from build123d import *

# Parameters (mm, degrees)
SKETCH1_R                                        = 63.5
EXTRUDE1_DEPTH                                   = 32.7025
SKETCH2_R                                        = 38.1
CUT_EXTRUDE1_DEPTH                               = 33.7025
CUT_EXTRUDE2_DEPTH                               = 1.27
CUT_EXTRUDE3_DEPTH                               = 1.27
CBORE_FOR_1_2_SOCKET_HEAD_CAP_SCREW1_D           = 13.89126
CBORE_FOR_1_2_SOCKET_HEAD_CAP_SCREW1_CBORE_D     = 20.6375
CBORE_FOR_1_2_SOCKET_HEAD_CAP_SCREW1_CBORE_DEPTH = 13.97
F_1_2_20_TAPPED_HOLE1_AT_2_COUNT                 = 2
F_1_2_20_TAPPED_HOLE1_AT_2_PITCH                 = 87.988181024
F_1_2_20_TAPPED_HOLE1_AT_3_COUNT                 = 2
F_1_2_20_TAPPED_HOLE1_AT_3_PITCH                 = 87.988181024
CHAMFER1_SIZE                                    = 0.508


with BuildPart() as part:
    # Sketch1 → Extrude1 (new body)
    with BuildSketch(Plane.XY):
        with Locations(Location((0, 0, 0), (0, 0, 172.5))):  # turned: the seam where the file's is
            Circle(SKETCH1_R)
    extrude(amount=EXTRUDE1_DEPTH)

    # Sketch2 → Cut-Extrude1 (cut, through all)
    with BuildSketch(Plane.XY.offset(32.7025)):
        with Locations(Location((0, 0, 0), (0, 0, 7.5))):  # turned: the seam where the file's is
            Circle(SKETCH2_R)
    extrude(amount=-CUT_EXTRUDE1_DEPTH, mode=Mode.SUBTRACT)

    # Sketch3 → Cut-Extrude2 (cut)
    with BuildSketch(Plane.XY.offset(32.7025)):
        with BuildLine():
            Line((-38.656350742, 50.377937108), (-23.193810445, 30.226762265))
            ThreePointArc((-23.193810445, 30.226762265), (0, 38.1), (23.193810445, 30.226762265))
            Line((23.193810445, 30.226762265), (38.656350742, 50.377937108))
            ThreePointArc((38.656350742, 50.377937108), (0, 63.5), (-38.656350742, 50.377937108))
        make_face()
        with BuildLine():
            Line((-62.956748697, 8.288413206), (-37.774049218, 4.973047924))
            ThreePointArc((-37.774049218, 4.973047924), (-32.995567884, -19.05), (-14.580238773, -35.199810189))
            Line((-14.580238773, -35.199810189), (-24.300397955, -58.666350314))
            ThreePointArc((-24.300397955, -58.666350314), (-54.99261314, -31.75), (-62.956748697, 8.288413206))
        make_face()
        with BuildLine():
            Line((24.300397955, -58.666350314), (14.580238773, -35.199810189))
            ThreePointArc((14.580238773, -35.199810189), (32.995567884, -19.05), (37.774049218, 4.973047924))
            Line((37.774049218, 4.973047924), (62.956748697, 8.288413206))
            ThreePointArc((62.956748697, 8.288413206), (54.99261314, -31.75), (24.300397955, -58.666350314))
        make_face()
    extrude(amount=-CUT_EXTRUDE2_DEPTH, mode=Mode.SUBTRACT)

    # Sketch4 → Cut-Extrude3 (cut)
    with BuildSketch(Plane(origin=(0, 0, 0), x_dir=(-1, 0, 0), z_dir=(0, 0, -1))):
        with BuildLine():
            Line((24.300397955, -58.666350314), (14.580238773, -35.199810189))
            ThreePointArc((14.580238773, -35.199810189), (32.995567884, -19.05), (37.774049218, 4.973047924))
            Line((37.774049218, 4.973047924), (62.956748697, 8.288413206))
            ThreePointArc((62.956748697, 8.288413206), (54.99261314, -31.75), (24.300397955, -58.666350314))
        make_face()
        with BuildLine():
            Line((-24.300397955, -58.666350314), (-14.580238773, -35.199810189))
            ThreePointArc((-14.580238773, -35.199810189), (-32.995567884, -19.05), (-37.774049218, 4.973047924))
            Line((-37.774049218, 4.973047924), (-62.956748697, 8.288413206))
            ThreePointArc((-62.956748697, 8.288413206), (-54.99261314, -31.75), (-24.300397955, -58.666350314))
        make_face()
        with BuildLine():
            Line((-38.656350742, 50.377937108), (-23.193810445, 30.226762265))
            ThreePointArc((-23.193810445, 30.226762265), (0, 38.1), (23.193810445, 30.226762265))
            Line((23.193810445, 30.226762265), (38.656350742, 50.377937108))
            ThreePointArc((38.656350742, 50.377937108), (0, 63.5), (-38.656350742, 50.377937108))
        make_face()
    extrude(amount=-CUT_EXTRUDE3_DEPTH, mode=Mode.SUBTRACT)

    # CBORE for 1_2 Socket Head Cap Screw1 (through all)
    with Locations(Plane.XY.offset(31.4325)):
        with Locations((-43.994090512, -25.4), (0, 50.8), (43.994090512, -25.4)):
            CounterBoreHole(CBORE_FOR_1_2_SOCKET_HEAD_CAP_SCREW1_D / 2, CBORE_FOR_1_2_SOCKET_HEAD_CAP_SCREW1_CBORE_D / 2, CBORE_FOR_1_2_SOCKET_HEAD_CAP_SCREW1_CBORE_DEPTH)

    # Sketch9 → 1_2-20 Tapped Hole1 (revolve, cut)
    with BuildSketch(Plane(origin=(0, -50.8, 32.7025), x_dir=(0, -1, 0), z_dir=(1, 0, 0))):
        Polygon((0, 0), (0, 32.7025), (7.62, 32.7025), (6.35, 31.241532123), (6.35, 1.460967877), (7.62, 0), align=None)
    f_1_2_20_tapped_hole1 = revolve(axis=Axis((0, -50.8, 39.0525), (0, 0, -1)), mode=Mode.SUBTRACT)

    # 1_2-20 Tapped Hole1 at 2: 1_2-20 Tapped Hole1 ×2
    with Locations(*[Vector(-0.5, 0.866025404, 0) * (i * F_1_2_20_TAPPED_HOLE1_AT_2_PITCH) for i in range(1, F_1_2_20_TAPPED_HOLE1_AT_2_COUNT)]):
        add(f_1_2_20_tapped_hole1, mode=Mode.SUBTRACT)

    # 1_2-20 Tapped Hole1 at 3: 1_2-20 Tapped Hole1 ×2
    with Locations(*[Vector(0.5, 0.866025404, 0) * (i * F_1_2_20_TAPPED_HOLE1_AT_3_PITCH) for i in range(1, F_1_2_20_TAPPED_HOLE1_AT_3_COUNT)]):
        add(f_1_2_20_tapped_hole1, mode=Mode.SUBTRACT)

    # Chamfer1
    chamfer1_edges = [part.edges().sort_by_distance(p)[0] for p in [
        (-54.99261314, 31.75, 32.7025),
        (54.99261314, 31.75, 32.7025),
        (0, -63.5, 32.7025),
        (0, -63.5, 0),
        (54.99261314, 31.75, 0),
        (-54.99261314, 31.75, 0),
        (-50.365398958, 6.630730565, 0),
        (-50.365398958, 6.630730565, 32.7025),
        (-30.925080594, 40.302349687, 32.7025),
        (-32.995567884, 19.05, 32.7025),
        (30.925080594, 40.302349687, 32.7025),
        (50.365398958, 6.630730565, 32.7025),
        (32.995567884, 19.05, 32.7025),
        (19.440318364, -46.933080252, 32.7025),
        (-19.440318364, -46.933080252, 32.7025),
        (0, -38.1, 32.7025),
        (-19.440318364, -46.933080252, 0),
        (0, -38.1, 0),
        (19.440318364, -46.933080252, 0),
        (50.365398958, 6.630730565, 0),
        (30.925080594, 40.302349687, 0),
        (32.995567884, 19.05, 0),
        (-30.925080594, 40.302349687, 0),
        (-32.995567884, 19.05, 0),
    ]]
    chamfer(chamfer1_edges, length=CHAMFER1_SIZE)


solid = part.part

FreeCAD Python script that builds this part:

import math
import FreeCAD as App
import Part
import Sketcher

V = App.Vector
Q = App.Units.Quantity


def edges_at(feature, points):
    """Names of the edges that pass closest to the given points."""
    edges = feature.Shape.Edges
    near = lambda p: min(range(len(edges)), key=lambda i: edges[i].distToShape(Part.Vertex(*p))[0])
    return sorted({f"Edge{near(p) + 1}" for p in points})

doc = App.newDocument("Part")
params = doc.addObject("Spreadsheet::Sheet", "Params")
for row, (alias, value) in enumerate([
    ("sketch1_diameter", "5 in"),
    ("pad1_length", "1.2875 in"),
    ("sketch2_diameter", "3 in"),
    ("sketch3_radius", "1.5 in"),
    ("sketch3_radius2", "2.5 in"),
    ("pocket2_length", "0.05 in"),
    ("sketch4_radius", "2.5 in"),
    ("sketch4_radius2", "1.5 in"),
    ("pocket3_length", "0.05 in"),
    ("hole_diameter", "0.5469 in"),
    ("hole_cbore_diameter", "0.8125 in"),
    ("hole_cbore_depth", "0.55 in"),
    ("sketch6_width", "0.3 in"),
    ("groove_angle", "360 deg"),
    ("linearpattern_pitch", "87.988181 mm"),
    ("linearpattern2_pitch", "87.988181 mm"),
    ("chamfer_size", "0.02 in"),
], start=1):
    params.set(f"A{row}", alias)
    params.set(f"B{row}", "=" + value)
    params.setAlias(f"B{row}", alias)

body = doc.addObject("PartDesign::Body", "Body")

sketch1 = body.newObject("Sketcher::SketchObject", "Sketch")
sketch1.AttachmentSupport = (doc.getObject("XY_Plane"), [""])
sketch1.MapMode = "FlatFace"
sketch1.addGeometry(Part.Circle(V(0, 0, 0), V(0, 0, 1), 63.5), False)
sketch1.addConstraint([
    Sketcher.Constraint("Coincident", 0, 3, -1, 1),
    Sketcher.Constraint("Diameter", 0, Q("5 in")),
])
sketch1.setExpression("Constraints[1]", "Params.sketch1_diameter")
pad1 = body.newObject("PartDesign::Pad", "Pad")
pad1.Profile = sketch1
pad1.setExpression("Length", "Params.pad1_length")

sketch2 = body.newObject("Sketcher::SketchObject", "Sketch001")
sketch2.AttachmentSupport = (doc.getObject("XY_Plane"), [""])
sketch2.MapMode = "FlatFace"
sketch2.AttachmentOffset = App.Placement(V(0, 0, 1.2875 * 25.4), App.Rotation())
sketch2.addGeometry(Part.Circle(V(0, 0, 0), V(0, 0, 1), 38.1), False)
sketch2.addConstraint([
    Sketcher.Constraint("Coincident", 0, 3, -1, 1),
    Sketcher.Constraint("Diameter", 0, Q("3 in")),
])
sketch2.setExpression("Constraints[1]", "Params.sketch2_diameter")
pocket1 = body.newObject("PartDesign::Pocket", "Pocket")
pocket1.Profile = sketch2
pocket1.Type = "ThroughAll"

sketch3 = body.newObject("Sketcher::SketchObject", "Sketch002")
sketch3.AttachmentSupport = (doc.getObject("XY_Plane"), [""])
sketch3.MapMode = "FlatFace"
sketch3.AttachmentOffset = App.Placement(V(0, 0, 1.2875 * 25.4), App.Rotation())
sketch3.addGeometry([
    Part.LineSegment(V(-38.656351, 50.377937, 0), V(-23.19381, 30.226762, 0)),
    Part.ArcOfCircle(Part.Circle(V(0, 0, 0), V(0, 0, 1), 38.1), math.radians(52.5), math.radians(127.5)),
    Part.LineSegment(V(23.19381, 30.226762, 0), V(38.656351, 50.377937, 0)),
    Part.ArcOfCircle(Part.Circle(V(0, 0, 0), V(0, 0, 1), 63.5), math.radians(52.5), math.radians(127.5)),
    Part.LineSegment(V(-37.774049, 4.973048, 0), V(-62.956749, 8.288413, 0)),
    Part.ArcOfCircle(Part.Circle(V(0, 0, 0), V(0, 0, 1), 63.5), math.radians(172.5), math.radians(247.5)),
    Part.LineSegment(V(-24.300398, -58.66635, 0), V(-14.580239, -35.19981, 0)),
    Part.ArcOfCircle(Part.Circle(V(0, 0, 0), V(0, 0, 1), 38.1), math.radians(172.5), math.radians(247.5)),
    Part.LineSegment(V(14.580239, -35.19981, 0), V(24.300398, -58.66635, 0)),
    Part.ArcOfCircle(Part.Circle(V(0, 0, 0), V(0, 0, 1), 63.5), math.radians(-67.5), math.radians(7.5)),
    Part.LineSegment(V(62.956749, 8.288413, 0), V(37.774049, 4.973048, 0)),
    Part.ArcOfCircle(Part.Circle(V(0, 0, 0), V(0, 0, 1), 38.1), math.radians(-67.5), math.radians(7.5)),
], False)
sketch3.addConstraint([
    Sketcher.Constraint("Coincident", 0, 2, 1, 2),
    Sketcher.Constraint("Coincident", 1, 1, 2, 1),
    Sketcher.Constraint("Coincident", 2, 2, 3, 1),
    Sketcher.Constraint("Coincident", 3, 2, 0, 1),
    Sketcher.Constraint("Coincident", 4, 2, 5, 1),
    Sketcher.Constraint("Coincident", 5, 2, 6, 1),
    Sketcher.Constraint("Coincident", 6, 2, 7, 2),
    Sketcher.Constraint("Coincident", 7, 1, 4, 1),
    Sketcher.Constraint("Coincident", 8, 2, 9, 1),
    Sketcher.Constraint("Coincident", 9, 2, 10, 1),
    Sketcher.Constraint("Coincident", 10, 2, 11, 2),
    Sketcher.Constraint("Coincident", 11, 1, 8, 1),
    Sketcher.Constraint("Coincident", 1, 3, -1, 1),
    Sketcher.Constraint("Coincident", 3, 3, -1, 1),
    Sketcher.Constraint("Coincident", 5, 3, -1, 1),
    Sketcher.Constraint("Coincident", 7, 3, -1, 1),
    Sketcher.Constraint("Coincident", 9, 3, -1, 1),
    Sketcher.Constraint("Coincident", 11, 3, -1, 1),
    Sketcher.Constraint("Equal", 3, 5),
    Sketcher.Constraint("Equal", 1, 7),
    Sketcher.Constraint("Equal", 5, 9),
    Sketcher.Constraint("Equal", 7, 11),
    Sketcher.Constraint("Horizontal", 0, 2, 1, 1),
    Sketcher.Constraint("Horizontal", 2, 2, 3, 2),
    Sketcher.Constraint("Horizontal", 5, 2, 8, 2),
    Sketcher.Constraint("Horizontal", 4, 2, 9, 2),
    Sketcher.Constraint("Horizontal", 7, 1, 10, 2),
    Sketcher.Constraint("Horizontal", 6, 2, 11, 1),
    Sketcher.Constraint("Radius", 1, Q("1.5 in")),
    Sketcher.Constraint("Radius", 3, Q("2.5 in")),
    Sketcher.Constraint("Angle", 0, Q("-52.5 deg")),
    Sketcher.Constraint("Angle", 4, Q("172.5 deg")),
    Sketcher.Constraint("Angle", 6, Q("67.5 deg")),
    Sketcher.Constraint("DistanceX", 0, 2, -1, 1, 23.19381),
    Sketcher.Constraint("DistanceX", 4, 2, -1, 1, 62.956749),
    Sketcher.Constraint("DistanceY", 5, 2, -1, 1, 58.66635),
])
sketch3.setExpression("Constraints[28]", "Params.sketch3_radius")
sketch3.setExpression("Constraints[29]", "Params.sketch3_radius2")
pocket2 = body.newObject("PartDesign::Pocket", "Pocket001")
pocket2.Profile = sketch3
pocket2.setExpression("Length", "Params.pocket2_length")

sketch4 = body.newObject("Sketcher::SketchObject", "Sketch003")
sketch4.AttachmentSupport = (doc.getObject("XY_Plane"), [""])
sketch4.MapMode = "FlatFace"
sketch4.addGeometry([
    Part.LineSegment(V(-14.580239, -35.19981, 0), V(-24.300398, -58.66635, 0)),
    Part.ArcOfCircle(Part.Circle(V(0, 0, 0), V(0, 0, 1), 63.5), math.radians(172.5), math.radians(247.5)),
    Part.LineSegment(V(-62.956749, 8.288413, 0), V(-37.774049, 4.973048, 0)),
    Part.ArcOfCircle(Part.Circle(V(0, 0, 0), V(0, 0, 1), 38.1), math.radians(172.5), math.radians(247.5)),
    Part.LineSegment(V(24.300398, -58.66635, 0), V(14.580239, -35.19981, 0)),
    Part.ArcOfCircle(Part.Circle(V(0, 0, 0), V(0, 0, 1), 38.1), math.radians(-67.5), math.radians(7.5)),
    Part.LineSegment(V(37.774049, 4.973048, 0), V(62.956749, 8.288413, 0)),
    Part.ArcOfCircle(Part.Circle(V(0, 0, 0), V(0, 0, 1), 63.5), math.radians(-67.5), math.radians(7.5)),
    Part.LineSegment(V(38.656351, 50.377937, 0), V(23.19381, 30.226762, 0)),
    Part.ArcOfCircle(Part.Circle(V(0, 0, 0), V(0, 0, 1), 38.1), math.radians(52.5), math.radians(127.5)),
    Part.LineSegment(V(-23.19381, 30.226762, 0), V(-38.656351, 50.377937, 0)),
    Part.ArcOfCircle(Part.Circle(V(0, 0, 0), V(0, 0, 1), 63.5), math.radians(52.5), math.radians(127.5)),
], False)
sketch4.addConstraint([
    Sketcher.Constraint("Coincident", 0, 2, 1, 2),
    Sketcher.Constraint("Coincident", 1, 1, 2, 1),
    Sketcher.Constraint("Coincident", 2, 2, 3, 1),
    Sketcher.Constraint("Coincident", 3, 2, 0, 1),
    Sketcher.Constraint("Coincident", 4, 2, 5, 1),
    Sketcher.Constraint("Coincident", 5, 2, 6, 1),
    Sketcher.Constraint("Coincident", 6, 2, 7, 2),
    Sketcher.Constraint("Coincident", 7, 1, 4, 1),
    Sketcher.Constraint("Coincident", 8, 2, 9, 1),
    Sketcher.Constraint("Coincident", 9, 2, 10, 1),
    Sketcher.Constraint("Coincident", 10, 2, 11, 2),
    Sketcher.Constraint("Coincident", 11, 1, 8, 1),
    Sketcher.Constraint("Coincident", 1, 3, -1, 1),
    Sketcher.Constraint("Coincident", 3, 3, -1, 1),
    Sketcher.Constraint("Coincident", 5, 3, -1, 1),
    Sketcher.Constraint("Coincident", 7, 3, -1, 1),
    Sketcher.Constraint("Coincident", 9, 3, -1, 1),
    Sketcher.Constraint("Coincident", 11, 3, -1, 1),
    Sketcher.Constraint("Equal", 3, 5),
    Sketcher.Constraint("Equal", 1, 7),
    Sketcher.Constraint("Equal", 5, 9),
    Sketcher.Constraint("Equal", 7, 11),
    Sketcher.Constraint("Horizontal", 3, 2, 4, 2),
    Sketcher.Constraint("Horizontal", 2, 2, 5, 2),
    Sketcher.Constraint("Horizontal", 1, 1, 6, 2),
    Sketcher.Constraint("Horizontal", 0, 2, 7, 1),
    Sketcher.Constraint("Horizontal", 8, 2, 9, 2),
    Sketcher.Constraint("Horizontal", 10, 2, 11, 1),
    Sketcher.Constraint("Radius", 1, Q("2.5 in")),
    Sketcher.Constraint("Radius", 3, Q("1.5 in")),
    Sketcher.Constraint("Angle", 0, Q("-112.5 deg")),
    Sketcher.Constraint("Angle", 2, Q("-7.5 deg")),
    Sketcher.Constraint("Angle", 8, Q("-127.5 deg")),
    Sketcher.Constraint("DistanceX", 10, 2, 2, 2, 0.882302),
    Sketcher.Constraint("DistanceY", 0, 2, -1, 1, 58.66635),
    Sketcher.Constraint("DistanceX", 1, 1, -1, 1, 62.956749),
])
sketch4.setExpression("Constraints[28]", "Params.sketch4_radius")
sketch4.setExpression("Constraints[29]", "Params.sketch4_radius2")
pocket3 = body.newObject("PartDesign::Pocket", "Pocket002")
pocket3.Profile = sketch4
pocket3.setExpression("Length", "Params.pocket3_length")
pocket3.Reversed = True

sketch5 = body.newObject("Sketcher::SketchObject", "Sketch004")
sketch5.AttachmentSupport = (doc.getObject("XY_Plane"), [""])
sketch5.MapMode = "FlatFace"
sketch5.AttachmentOffset = App.Placement(V(0, 0, 1.2375 * 25.4), App.Rotation())
sketch5.addGeometry([
    Part.Circle(V(-43.994091, -25.4, 0), V(0, 0, 1), 6.94563),
    Part.Circle(V(0, 50.8, 0), V(0, 0, 1), 6.94563),
    Part.Circle(V(43.994091, -25.4, 0), V(0, 0, 1), 6.94563),
], False)
sketch5.addConstraint([
    Sketcher.Constraint("Equal", 0, 1),
    Sketcher.Constraint("Equal", 1, 2),
    Sketcher.Constraint("Symmetric", 0, 3, 2, 3, -2),
    Sketcher.Constraint("PointOnObject", 1, 3, -2),
    Sketcher.Constraint("DistanceY", 0, 3, -1, 1, Q("1 in")),
    Sketcher.Constraint("DistanceY", -1, 1, 1, 3, Q("2 in")),
    Sketcher.Constraint("Diameter", 0, Q("0.5469 in")),
    Sketcher.Constraint("DistanceX", 0, 3, -1, 1, 43.994091),
])
doc.recompute()
hole = body.newObject("PartDesign::Hole", "Hole")
hole.Profile = sketch5
hole.ThreadType = "None"
hole.setExpression("Diameter", "Params.hole_diameter")
hole.DepthType = "ThroughAll"
hole.HoleCutType = "Counterbore"
hole.setExpression("HoleCutDiameter", "Params.hole_cbore_diameter")
hole.setExpression("HoleCutDepth", "Params.hole_cbore_depth")

sketch6 = body.newObject("Sketcher::SketchObject", "Sketch005")
sketch6.AttachmentSupport = (doc.getObject("YZ_Plane"), [""])
sketch6.MapMode = "FlatFace"
sketch6.addGeometry([
    Part.LineSegment(V(-50.8, 0, 0), V(-50.8, 32.7025, 0)),
    Part.LineSegment(V(-50.8, 32.7025, 0), V(-58.42, 32.7025, 0)),
    Part.LineSegment(V(-58.42, 32.7025, 0), V(-57.15, 31.241532, 0)),
    Part.LineSegment(V(-57.15, 31.241532, 0), V(-57.15, 1.460968, 0)),
    Part.LineSegment(V(-57.15, 1.460968, 0), V(-58.42, 0, 0)),
    Part.LineSegment(V(-58.42, 0, 0), V(-50.8, 0, 0)),
], False)
sketch6.addGeometry(Part.LineSegment(V(-50.8, 32.7025, 0), V(-50.8, 0, 0)), True)
sketch6.addConstraint([
    Sketcher.Constraint("Coincident", 0, 2, 1, 1),
    Sketcher.Constraint("Coincident", 1, 2, 2, 1),
    Sketcher.Constraint("Coincident", 2, 2, 3, 1),
    Sketcher.Constraint("Coincident", 3, 2, 4, 1),
    Sketcher.Constraint("Coincident", 4, 2, 5, 1),
    Sketcher.Constraint("Coincident", 5, 2, 0, 1),
    Sketcher.Constraint("Vertical", 0),
    Sketcher.Constraint("Horizontal", 1),
    Sketcher.Constraint("Vertical", 3),
    Sketcher.Constraint("Horizontal", 5),
    Sketcher.Constraint("Vertical", 6),
    Sketcher.Constraint("Coincident", 6, 1, 0, 2),
    Sketcher.Constraint("PointOnObject", 4, 2, -1),
    Sketcher.Constraint("PointOnObject", 6, 2, -1),
    Sketcher.Constraint("Vertical", 1, 2, 4, 2),
    Sketcher.Constraint("Equal", 2, 4),
    Sketcher.Constraint("DistanceX", 1, 2, 1, 1, Q("0.3 in")),
    Sketcher.Constraint("DistanceX", 0, 2, -1, 1, Q("2 in")),
    Sketcher.Constraint("Angle", 2, Q("-49 deg")),
    Sketcher.Constraint("DistanceX", 2, 2, -1, 1, Q("2.25 in")),
    Sketcher.Constraint("DistanceY", 0, 1, 0, 2, Q("1.2875 in")),
])
sketch6.setExpression("Constraints[16]", "Params.sketch6_width")
groove = body.newObject("PartDesign::Groove", "Groove")
groove.Profile = sketch6
groove.ReferenceAxis = (sketch6, ["Axis0"])
groove.setExpression("Angle", "Params.groove_angle")
doc.recompute()

datumline = body.newObject("PartDesign::Line", "DatumLine")
datumline.Placement = App.Placement(V(0, 0, 0), App.Rotation(V(0, 0, 1), V(-0.5, 0.866025404, 0)))
linearpattern = body.newObject("PartDesign::LinearPattern", "LinearPattern")
linearpattern.Originals = [groove]
linearpattern.Direction = (datumline, [""])
linearpattern.Mode = "offset"
linearpattern.setExpression("Offset", "Params.linearpattern_pitch")
linearpattern.Occurrences = 2
body.Tip = linearpattern
doc.recompute()

datumline2 = body.newObject("PartDesign::Line", "DatumLine001")
datumline2.Placement = App.Placement(V(0, 0, 0), App.Rotation(V(0, 0, 1), V(0.5, 0.866025404, 0)))
linearpattern2 = body.newObject("PartDesign::LinearPattern", "LinearPattern001")
linearpattern2.Originals = [groove]
linearpattern2.Direction = (datumline2, [""])
linearpattern2.Mode = "offset"
linearpattern2.setExpression("Offset", "Params.linearpattern2_pitch")
linearpattern2.Occurrences = 2
body.Tip = linearpattern2
doc.recompute()

chamfer = body.newObject("PartDesign::Chamfer", "Chamfer")
chamfer.Base = (linearpattern2, edges_at(linearpattern2, [
    (-54.993, 31.75, 32.703),
    (54.993, 31.75, 32.703),
    (0, -63.5, 32.703),
    (0, -63.5, 0),
    (54.993, 31.75, 0),
    (-54.993, 31.75, 0),
    (-50.365, 6.631, 0),
    (-50.365, 6.631, 32.703),
    (-30.925, 40.302, 32.703),
    (-32.996, 19.05, 32.703),
    (30.925, 40.302, 32.703),
    (50.365, 6.631, 32.703),
    (32.996, 19.05, 32.703),
    (19.44, -46.933, 32.703),
    (-19.44, -46.933, 32.703),
    (0, -38.1, 32.703),
    (-19.44, -46.933, 0),
    (0, -38.1, 0),
    (19.44, -46.933, 0),
    (50.365, 6.631, 0),
    (30.925, 40.302, 0),
    (32.996, 19.05, 0),
    (-30.925, 40.302, 0),
    (-32.996, 19.05, 0),
]))
chamfer.setExpression("Size", "Params.chamfer_size")

doc.recompute()
